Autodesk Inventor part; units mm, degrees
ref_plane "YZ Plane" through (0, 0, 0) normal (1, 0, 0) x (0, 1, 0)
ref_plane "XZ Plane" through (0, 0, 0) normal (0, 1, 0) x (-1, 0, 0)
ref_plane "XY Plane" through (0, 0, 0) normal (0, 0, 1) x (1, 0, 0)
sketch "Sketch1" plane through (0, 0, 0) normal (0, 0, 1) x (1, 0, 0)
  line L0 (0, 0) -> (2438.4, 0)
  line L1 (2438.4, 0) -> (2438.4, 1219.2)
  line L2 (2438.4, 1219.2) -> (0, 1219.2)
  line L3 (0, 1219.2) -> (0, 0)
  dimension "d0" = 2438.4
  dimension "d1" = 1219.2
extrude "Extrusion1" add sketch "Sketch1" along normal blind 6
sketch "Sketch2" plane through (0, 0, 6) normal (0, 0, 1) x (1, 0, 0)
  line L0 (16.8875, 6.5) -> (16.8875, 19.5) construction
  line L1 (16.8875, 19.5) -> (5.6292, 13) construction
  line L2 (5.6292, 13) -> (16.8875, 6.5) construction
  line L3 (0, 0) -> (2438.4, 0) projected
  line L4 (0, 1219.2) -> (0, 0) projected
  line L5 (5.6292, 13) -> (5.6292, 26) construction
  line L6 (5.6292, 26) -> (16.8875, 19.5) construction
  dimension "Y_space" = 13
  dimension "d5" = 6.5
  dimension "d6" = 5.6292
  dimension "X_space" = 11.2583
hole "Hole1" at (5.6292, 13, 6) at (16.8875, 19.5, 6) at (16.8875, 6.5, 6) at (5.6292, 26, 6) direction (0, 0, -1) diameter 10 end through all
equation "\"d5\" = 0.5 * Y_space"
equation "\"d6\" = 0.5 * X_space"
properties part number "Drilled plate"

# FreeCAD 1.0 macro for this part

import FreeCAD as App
import Part
import Sketcher

V = App.Vector
Q = App.Units.Quantity

doc = App.newDocument("Part")
body = doc.addObject("PartDesign::Body", "Body")

sketch1 = body.newObject("Sketcher::SketchObject", "Sketch")
sketch1.AttachmentSupport = (doc.getObject("XY_Plane"), [""])
sketch1.MapMode = "FlatFace"
sketch1.addGeometry(Part.LineSegment(V(0, 1219, 0), V(0, 0, 0)), False)
sketch1.addGeometry(Part.LineSegment(V(0, 0, 0), V(2438, 0, 0)), False)
sketch1.addGeometry(Part.LineSegment(V(2438, 0, 0), V(2438, 1219, 0)), False)
sketch1.addGeometry(Part.LineSegment(V(2438, 1219, 0), V(0, 1219, 0)), False)
sketch1.addConstraint(Sketcher.Constraint("Coincident", 0, 2, 1, 1))
sketch1.addConstraint(Sketcher.Constraint("Coincident", 1, 2, 2, 1))
sketch1.addConstraint(Sketcher.Constraint("Coincident", 2, 2, 3, 1))
sketch1.addConstraint(Sketcher.Constraint("Coincident", 3, 2, 0, 1))
sketch1.addConstraint(Sketcher.Constraint("Vertical", 0))
sketch1.addConstraint(Sketcher.Constraint("Horizontal", 1))
sketch1.addConstraint(Sketcher.Constraint("Vertical", 2))
sketch1.addConstraint(Sketcher.Constraint("Horizontal", 3))
sketch1.addConstraint(Sketcher.Constraint("Coincident", 0, 2, -1, 1))
sketch1.addConstraint(Sketcher.Constraint("DistanceX", 1, 1, 1, 2, Q("96 in")))
sketch1.addConstraint(Sketcher.Constraint("DistanceY", 0, 2, 0, 1, Q("48 in")))
pad1 = body.newObject("PartDesign::Pad", "Pad")
pad1.Profile = sketch1
pad1.Length = 6

sketch2 = body.newObject("Sketcher::SketchObject", "Sketch001")
sketch2.AttachmentSupport = (doc.getObject("XY_Plane"), [""])
sketch2.MapMode = "FlatFace"
sketch2.AttachmentOffset = App.Placement(V(0, 0, 6), App.Rotation())
sketch2.addGeometry(Part.Circle(V(6, 13, 0), V(0, 0, 1), 5), False)
sketch2.addGeometry(Part.Circle(V(17, 20, 0), V(0, 0, 1), 5), False)
sketch2.addGeometry(Part.Circle(V(17, 6, 0), V(0, 0, 1), 5), False)
sketch2.addGeometry(Part.Circle(V(6, 26, 0), V(0, 0, 1), 5), False)
sketch2.addConstraint(Sketcher.Constraint("Equal", 0, 1))
sketch2.addConstraint(Sketcher.Constraint("Equal", 1, 2))
sketch2.addConstraint(Sketcher.Constraint("Equal", 2, 3))
sketch2.addConstraint(Sketcher.Constraint("Vertical", 1, 3, 2, 3))
sketch2.addConstraint(Sketcher.Constraint("Vertical", 0, 3, 3, 3))
sketch2.addConstraint(Sketcher.Constraint("Diameter", 0, Q("0.3937 in")))
sketch2.addConstraint(Sketcher.Constraint("DistanceY", -1, 1, 0, 3, Q("0.5118 in")))
sketch2.addConstraint(Sketcher.Constraint("DistanceY", -1, 1, 2, 3, Q("0.2559 in")))
sketch2.addConstraint(Sketcher.Constraint("DistanceY", 0, 3, 1, 3, Q("0.2559 in")))
sketch2.addConstraint(Sketcher.Constraint("DistanceY", 1, 3, 3, 3, Q("0.2559 in")))
sketch2.addConstraint(Sketcher.Constraint("DistanceX", -1, 1, 0, 3, Q("5.6292 mm")))
sketch2.addConstraint(Sketcher.Constraint("DistanceX", -1, 1, 1, 3, Q("16.8875 mm")))
doc.recompute()
hole = body.newObject("PartDesign::Hole", "Hole")
hole.Profile = sketch2
hole.ThreadType = "None"
hole.Diameter = Q("0.3937008 in")
hole.DepthType = "ThroughAll"

doc.recompute()
